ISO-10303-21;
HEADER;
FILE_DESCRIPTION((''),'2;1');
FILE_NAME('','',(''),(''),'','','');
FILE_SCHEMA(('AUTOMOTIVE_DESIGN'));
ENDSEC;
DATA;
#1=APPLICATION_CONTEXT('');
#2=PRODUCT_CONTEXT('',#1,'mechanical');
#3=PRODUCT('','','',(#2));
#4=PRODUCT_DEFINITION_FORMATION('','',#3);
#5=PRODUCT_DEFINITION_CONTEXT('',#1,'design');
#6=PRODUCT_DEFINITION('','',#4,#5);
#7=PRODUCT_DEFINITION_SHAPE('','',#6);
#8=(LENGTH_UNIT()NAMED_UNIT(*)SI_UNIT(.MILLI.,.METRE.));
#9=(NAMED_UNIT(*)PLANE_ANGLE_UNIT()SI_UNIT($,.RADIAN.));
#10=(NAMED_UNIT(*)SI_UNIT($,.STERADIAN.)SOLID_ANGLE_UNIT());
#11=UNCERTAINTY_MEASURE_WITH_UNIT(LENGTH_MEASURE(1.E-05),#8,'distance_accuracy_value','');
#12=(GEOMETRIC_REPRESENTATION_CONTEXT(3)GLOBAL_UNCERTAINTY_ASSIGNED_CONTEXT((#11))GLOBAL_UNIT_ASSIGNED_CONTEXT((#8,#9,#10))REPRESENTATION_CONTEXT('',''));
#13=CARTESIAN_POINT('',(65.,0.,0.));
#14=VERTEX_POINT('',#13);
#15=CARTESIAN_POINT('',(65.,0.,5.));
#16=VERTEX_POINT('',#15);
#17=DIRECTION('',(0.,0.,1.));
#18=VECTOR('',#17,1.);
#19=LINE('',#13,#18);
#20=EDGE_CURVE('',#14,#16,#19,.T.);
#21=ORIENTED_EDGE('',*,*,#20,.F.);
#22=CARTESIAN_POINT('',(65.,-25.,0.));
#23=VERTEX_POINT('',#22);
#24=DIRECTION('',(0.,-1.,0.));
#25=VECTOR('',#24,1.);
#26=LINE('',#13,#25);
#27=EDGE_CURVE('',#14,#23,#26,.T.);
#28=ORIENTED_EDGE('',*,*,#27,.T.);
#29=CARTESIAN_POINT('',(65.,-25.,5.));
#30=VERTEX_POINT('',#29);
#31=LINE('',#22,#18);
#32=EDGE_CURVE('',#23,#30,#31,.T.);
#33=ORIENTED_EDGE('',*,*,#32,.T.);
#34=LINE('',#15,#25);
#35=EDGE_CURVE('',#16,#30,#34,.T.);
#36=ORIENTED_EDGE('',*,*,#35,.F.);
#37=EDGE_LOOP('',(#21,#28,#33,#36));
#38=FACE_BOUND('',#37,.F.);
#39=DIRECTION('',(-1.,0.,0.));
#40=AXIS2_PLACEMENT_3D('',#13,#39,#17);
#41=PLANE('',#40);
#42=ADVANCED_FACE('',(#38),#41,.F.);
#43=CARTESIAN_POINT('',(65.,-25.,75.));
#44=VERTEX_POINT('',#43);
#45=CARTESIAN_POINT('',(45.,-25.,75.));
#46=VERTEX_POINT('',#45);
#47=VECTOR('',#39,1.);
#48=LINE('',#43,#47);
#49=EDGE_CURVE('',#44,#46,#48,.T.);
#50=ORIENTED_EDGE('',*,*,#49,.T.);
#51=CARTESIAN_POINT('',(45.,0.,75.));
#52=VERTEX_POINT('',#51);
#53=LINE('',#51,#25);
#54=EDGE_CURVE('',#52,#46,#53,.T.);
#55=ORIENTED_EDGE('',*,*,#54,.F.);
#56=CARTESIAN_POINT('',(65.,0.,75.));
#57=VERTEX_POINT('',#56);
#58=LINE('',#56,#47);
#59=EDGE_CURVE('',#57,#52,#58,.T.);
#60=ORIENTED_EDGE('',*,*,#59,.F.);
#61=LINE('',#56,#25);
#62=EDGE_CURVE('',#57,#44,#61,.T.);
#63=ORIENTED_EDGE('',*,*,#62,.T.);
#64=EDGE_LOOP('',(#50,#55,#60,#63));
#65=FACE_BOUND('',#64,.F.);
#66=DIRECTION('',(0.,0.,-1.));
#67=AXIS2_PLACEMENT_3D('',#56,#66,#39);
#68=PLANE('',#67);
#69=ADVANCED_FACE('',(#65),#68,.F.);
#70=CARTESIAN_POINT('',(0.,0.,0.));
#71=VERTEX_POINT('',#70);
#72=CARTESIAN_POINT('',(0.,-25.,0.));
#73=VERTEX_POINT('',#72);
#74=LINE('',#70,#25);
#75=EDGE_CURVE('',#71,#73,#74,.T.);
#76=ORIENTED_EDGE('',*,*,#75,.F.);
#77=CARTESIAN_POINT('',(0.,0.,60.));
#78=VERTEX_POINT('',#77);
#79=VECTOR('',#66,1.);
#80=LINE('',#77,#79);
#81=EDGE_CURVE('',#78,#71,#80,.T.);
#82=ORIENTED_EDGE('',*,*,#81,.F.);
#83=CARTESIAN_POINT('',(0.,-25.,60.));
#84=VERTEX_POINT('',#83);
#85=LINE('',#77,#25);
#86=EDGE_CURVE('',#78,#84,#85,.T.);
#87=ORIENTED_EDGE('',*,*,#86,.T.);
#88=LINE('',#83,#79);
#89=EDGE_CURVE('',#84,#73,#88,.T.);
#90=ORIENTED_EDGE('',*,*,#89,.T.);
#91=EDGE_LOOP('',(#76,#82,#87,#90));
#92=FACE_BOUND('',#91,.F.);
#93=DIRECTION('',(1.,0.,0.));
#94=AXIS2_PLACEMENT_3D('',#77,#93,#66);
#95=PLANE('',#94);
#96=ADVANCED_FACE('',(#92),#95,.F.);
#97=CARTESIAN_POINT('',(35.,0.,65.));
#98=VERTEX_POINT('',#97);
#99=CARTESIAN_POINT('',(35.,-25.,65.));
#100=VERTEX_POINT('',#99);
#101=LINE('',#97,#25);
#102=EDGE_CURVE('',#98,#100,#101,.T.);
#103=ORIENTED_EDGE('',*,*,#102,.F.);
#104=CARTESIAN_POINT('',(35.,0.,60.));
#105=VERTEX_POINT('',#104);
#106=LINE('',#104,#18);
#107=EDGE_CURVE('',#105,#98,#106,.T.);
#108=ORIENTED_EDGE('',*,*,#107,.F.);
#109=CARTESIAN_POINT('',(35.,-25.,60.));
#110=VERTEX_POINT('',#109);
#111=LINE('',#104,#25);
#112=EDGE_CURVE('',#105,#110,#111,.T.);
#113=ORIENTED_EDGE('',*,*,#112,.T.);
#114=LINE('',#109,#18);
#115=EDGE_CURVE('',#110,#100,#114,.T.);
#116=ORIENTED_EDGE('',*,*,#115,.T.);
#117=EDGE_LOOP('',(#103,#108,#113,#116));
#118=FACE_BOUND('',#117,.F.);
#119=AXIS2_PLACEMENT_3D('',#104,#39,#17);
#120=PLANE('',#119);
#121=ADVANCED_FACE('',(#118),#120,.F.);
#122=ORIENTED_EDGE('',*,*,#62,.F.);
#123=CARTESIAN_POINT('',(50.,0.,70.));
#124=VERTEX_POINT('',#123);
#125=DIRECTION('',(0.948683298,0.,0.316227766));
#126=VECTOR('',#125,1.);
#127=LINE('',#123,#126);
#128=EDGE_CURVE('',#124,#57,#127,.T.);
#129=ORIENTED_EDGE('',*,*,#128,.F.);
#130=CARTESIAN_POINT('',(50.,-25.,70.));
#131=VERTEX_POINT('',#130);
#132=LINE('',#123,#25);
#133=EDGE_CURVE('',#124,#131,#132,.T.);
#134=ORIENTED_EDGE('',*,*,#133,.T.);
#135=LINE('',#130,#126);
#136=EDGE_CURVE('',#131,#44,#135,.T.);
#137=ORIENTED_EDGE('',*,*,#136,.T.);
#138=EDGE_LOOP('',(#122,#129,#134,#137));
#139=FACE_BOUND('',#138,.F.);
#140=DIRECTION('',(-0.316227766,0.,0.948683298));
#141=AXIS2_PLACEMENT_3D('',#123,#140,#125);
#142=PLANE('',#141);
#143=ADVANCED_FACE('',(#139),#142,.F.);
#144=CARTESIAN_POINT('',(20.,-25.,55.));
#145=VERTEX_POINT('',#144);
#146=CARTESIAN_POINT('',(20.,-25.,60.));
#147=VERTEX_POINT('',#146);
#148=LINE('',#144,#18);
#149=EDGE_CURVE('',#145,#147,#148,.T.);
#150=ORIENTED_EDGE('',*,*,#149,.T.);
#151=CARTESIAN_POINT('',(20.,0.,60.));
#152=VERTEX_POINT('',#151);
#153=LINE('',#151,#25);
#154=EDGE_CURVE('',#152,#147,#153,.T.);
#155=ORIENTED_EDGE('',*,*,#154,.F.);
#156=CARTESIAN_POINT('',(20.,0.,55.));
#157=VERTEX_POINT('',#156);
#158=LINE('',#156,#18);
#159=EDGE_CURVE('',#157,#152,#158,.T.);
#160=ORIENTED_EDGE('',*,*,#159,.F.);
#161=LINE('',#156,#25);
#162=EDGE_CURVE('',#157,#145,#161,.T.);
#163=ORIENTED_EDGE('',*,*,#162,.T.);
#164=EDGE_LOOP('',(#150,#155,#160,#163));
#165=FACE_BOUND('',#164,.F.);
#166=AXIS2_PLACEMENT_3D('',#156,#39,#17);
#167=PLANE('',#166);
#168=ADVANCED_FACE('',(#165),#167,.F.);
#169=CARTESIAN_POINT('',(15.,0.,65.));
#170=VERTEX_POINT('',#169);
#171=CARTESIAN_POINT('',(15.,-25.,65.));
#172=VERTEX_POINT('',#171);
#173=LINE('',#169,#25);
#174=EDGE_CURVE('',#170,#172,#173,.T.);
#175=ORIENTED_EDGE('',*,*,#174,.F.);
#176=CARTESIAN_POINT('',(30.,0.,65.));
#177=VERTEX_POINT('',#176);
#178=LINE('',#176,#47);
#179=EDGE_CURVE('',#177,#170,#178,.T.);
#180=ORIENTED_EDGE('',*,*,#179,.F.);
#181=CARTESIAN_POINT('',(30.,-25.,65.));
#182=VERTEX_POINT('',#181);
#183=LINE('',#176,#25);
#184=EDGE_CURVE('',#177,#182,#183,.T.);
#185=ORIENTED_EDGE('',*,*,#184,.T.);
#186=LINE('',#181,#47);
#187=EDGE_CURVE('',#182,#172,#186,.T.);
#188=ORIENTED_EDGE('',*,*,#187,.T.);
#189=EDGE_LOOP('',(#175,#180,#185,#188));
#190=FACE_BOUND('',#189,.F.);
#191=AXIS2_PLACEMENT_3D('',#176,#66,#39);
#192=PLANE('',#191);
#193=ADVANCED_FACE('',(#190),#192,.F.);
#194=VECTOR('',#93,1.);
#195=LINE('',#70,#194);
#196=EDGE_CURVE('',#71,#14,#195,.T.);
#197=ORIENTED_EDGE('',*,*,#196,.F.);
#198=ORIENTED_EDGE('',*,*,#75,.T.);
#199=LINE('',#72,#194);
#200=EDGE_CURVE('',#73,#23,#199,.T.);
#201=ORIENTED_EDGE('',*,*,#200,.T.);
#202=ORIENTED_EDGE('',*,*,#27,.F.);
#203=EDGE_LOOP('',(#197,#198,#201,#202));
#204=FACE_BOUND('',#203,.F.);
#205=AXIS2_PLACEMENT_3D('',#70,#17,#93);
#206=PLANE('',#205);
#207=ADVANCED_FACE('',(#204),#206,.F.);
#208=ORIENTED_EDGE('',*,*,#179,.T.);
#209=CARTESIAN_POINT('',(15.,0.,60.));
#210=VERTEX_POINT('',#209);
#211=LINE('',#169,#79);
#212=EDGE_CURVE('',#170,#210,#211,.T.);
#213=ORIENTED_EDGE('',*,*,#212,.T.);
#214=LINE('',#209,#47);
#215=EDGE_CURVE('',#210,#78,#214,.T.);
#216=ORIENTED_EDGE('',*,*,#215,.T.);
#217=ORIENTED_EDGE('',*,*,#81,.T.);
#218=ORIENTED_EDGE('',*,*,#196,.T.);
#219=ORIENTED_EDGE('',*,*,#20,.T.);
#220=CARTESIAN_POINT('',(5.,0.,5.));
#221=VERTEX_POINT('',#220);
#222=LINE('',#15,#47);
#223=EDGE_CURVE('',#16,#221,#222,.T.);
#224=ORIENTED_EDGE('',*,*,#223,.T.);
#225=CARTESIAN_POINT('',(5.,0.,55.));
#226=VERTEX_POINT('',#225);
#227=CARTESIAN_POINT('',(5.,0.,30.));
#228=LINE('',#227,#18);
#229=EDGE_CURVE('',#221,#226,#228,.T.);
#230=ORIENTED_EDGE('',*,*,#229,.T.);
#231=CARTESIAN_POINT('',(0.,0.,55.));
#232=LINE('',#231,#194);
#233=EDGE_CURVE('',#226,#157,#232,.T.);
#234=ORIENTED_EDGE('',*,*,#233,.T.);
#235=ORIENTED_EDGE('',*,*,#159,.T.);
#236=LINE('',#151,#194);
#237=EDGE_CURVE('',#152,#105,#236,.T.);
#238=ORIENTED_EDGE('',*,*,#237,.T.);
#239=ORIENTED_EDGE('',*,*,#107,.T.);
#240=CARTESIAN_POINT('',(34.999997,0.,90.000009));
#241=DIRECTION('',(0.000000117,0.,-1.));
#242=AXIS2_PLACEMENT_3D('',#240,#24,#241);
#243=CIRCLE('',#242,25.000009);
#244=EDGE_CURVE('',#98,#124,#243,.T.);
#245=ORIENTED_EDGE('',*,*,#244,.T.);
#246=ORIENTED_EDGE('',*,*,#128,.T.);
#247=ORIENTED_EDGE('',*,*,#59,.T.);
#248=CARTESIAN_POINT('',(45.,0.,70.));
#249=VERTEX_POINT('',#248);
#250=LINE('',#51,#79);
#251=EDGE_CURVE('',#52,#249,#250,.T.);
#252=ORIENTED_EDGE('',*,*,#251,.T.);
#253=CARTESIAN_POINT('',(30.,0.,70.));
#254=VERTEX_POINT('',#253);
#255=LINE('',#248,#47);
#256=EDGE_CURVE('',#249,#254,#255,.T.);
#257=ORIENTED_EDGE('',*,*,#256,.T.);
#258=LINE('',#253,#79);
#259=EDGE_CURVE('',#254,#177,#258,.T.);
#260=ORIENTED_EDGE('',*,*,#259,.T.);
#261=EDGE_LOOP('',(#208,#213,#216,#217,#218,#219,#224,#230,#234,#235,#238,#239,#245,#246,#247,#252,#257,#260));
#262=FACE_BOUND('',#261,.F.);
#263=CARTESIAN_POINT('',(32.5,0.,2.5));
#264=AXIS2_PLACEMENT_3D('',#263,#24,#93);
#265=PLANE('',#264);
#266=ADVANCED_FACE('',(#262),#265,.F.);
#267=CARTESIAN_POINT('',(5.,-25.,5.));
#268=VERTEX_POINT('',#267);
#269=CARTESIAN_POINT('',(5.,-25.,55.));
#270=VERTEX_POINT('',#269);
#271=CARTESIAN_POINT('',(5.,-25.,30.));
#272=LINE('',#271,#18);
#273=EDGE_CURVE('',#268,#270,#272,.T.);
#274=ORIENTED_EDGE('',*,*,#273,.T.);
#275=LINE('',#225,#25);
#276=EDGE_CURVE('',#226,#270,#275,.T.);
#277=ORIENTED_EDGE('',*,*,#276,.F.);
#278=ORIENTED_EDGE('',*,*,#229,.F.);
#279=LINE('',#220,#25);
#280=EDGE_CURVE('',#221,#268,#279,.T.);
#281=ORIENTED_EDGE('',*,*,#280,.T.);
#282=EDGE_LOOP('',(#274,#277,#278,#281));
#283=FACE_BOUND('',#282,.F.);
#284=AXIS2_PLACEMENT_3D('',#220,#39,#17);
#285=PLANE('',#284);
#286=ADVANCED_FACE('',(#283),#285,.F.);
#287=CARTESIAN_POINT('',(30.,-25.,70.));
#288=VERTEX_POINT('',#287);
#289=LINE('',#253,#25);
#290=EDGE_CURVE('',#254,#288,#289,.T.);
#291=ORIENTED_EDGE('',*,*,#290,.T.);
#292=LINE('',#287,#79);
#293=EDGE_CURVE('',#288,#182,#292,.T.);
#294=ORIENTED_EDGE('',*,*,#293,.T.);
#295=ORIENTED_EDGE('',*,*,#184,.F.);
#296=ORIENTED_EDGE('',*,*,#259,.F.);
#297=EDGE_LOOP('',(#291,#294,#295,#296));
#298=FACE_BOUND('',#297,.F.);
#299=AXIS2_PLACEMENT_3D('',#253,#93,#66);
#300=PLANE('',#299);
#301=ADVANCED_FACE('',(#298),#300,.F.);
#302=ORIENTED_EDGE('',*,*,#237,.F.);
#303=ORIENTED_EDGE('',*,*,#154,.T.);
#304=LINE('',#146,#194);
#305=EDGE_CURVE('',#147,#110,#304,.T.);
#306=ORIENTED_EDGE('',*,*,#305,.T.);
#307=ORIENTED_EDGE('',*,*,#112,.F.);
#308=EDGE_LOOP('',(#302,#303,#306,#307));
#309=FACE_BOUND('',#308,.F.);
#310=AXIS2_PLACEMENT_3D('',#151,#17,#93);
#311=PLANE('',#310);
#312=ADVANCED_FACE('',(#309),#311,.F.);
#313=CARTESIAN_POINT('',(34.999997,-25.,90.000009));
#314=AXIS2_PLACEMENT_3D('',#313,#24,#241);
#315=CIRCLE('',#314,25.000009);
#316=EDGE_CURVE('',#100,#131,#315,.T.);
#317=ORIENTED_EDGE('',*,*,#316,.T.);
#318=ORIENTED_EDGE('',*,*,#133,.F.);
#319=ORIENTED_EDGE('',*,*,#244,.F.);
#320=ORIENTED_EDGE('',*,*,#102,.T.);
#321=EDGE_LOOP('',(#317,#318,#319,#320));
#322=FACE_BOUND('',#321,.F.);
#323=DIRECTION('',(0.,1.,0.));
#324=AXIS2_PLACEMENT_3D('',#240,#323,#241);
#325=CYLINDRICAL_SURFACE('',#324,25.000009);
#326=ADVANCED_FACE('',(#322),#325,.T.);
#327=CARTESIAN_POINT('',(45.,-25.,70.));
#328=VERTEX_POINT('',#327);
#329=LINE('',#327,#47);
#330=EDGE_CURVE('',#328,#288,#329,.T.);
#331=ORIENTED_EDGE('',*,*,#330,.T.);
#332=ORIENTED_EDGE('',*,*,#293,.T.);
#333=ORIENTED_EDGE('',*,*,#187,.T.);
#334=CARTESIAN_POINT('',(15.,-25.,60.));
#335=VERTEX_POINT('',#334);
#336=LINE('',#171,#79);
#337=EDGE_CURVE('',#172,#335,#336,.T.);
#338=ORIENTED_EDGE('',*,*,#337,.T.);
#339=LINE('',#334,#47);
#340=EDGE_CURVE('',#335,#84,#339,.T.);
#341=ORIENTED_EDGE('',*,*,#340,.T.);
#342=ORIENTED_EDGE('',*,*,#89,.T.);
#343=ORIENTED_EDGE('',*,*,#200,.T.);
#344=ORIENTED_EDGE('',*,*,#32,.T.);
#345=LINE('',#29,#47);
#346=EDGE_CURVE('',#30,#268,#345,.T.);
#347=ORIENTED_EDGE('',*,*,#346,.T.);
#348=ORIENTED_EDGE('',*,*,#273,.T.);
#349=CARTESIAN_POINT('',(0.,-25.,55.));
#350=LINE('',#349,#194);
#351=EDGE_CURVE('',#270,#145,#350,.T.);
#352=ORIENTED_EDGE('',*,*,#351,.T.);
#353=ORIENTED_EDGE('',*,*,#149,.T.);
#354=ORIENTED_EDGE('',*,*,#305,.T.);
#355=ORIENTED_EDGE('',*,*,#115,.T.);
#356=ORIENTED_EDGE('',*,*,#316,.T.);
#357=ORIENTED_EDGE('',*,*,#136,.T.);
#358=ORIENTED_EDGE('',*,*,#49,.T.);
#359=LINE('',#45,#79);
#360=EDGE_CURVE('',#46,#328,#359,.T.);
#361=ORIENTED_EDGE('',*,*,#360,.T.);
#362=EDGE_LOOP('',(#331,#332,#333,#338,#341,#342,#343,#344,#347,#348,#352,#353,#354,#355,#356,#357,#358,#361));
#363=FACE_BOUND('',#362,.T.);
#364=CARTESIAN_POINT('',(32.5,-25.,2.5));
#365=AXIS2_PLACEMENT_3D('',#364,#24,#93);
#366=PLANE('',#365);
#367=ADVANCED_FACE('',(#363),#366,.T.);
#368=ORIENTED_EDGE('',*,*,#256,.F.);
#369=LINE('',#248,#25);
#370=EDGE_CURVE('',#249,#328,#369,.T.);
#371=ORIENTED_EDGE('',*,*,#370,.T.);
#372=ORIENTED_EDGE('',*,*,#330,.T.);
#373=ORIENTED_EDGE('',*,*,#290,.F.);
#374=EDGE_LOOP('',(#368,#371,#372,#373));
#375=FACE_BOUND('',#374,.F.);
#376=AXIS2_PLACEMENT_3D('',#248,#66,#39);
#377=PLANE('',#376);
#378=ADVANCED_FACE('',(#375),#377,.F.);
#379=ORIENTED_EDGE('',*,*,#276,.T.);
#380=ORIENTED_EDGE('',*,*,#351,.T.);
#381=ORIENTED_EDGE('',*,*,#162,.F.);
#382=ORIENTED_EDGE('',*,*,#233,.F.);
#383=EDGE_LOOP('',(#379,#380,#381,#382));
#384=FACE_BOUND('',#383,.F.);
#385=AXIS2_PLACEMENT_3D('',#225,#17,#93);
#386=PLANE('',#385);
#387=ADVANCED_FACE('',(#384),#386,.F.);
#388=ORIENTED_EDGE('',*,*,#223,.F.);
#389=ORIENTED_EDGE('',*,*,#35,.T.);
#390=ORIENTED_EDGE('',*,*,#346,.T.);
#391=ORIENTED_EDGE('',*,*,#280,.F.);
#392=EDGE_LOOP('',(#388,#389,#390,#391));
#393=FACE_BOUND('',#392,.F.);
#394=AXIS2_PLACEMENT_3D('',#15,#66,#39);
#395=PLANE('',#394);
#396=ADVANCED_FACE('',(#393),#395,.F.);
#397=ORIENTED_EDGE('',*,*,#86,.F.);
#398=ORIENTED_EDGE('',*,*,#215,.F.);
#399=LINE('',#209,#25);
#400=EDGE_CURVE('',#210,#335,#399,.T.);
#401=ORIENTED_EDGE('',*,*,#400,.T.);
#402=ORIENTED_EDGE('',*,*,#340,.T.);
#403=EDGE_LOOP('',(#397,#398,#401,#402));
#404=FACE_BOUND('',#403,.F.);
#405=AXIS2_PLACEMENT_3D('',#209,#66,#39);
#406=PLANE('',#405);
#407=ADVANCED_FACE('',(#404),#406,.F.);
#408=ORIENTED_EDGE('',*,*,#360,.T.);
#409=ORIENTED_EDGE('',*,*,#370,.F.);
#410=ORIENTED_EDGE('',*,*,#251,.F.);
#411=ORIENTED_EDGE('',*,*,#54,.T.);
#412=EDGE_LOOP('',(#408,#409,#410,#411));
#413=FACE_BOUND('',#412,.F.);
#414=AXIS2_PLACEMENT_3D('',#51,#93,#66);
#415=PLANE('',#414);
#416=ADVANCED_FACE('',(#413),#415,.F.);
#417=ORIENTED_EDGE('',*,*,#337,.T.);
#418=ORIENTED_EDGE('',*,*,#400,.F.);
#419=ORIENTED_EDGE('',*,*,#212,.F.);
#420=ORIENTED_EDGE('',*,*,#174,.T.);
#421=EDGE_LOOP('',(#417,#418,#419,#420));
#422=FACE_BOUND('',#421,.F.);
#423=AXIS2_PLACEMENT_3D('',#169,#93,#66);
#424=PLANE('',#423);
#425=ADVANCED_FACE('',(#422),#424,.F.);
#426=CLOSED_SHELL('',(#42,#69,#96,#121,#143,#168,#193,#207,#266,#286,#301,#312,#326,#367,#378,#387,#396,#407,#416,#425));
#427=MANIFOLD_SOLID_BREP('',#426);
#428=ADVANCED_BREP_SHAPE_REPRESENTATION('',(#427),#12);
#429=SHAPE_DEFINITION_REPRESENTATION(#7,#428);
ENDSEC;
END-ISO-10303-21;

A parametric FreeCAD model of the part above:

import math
import FreeCAD as App
import Part
import Sketcher
from FreeCAD import Vector

doc = App.newDocument("Part")
body = doc.addObject("PartDesign::Body", "Body")

sketch1 = body.newObject("Sketcher::SketchObject", "Sketch")
sketch1.AttachmentSupport = (doc.getObject("XZ_Plane"), [""])
sketch1.MapMode = "FlatFace"
sketch1.addGeometry([
    Part.LineSegment(Vector(0, 0, 0), Vector(65, 0, 0)),
    Part.LineSegment(Vector(65, 0, 0), Vector(65, 5, 0)),
    Part.LineSegment(Vector(65, 5, 0), Vector(5, 5, 0)),
    Part.LineSegment(Vector(5, 5, 0), Vector(5, 55, 0)),
    Part.LineSegment(Vector(5, 55, 0), Vector(20, 55, 0)),
    Part.LineSegment(Vector(20, 55, 0), Vector(20, 60, 0)),
    Part.LineSegment(Vector(20, 60, 0), Vector(35, 60, 0)),
    Part.LineSegment(Vector(35, 60, 0), Vector(35, 65, 0)),
    Part.ArcOfCircle(Part.Circle(Vector(35, 90, 0), Vector(0, 0, 1), 25), math.radians(-90), math.radians(-53)),
    Part.LineSegment(Vector(50, 70, 0), Vector(65, 75, 0)),
    Part.LineSegment(Vector(65, 75, 0), Vector(45, 75, 0)),
    Part.LineSegment(Vector(45, 75, 0), Vector(45, 70, 0)),
    Part.LineSegment(Vector(45, 70, 0), Vector(30, 70, 0)),
    Part.LineSegment(Vector(30, 70, 0), Vector(30, 65, 0)),
    Part.LineSegment(Vector(30, 65, 0), Vector(15, 65, 0)),
    Part.LineSegment(Vector(15, 65, 0), Vector(15, 60, 0)),
    Part.LineSegment(Vector(15, 60, 0), Vector(0, 60, 0)),
    Part.LineSegment(Vector(0, 60, 0), Vector(0, 0, 0)),
], False)
sketch1.addConstraint([
    Sketcher.Constraint("Coincident", 0, 2, 1, 1),
    Sketcher.Constraint("Coincident", 1, 2, 2, 1),
    Sketcher.Constraint("Coincident", 2, 2, 3, 1),
    Sketcher.Constraint("Coincident", 3, 2, 4, 1),
    Sketcher.Constraint("Coincident", 4, 2, 5, 1),
    Sketcher.Constraint("Coincident", 5, 2, 6, 1),
    Sketcher.Constraint("Coincident", 6, 2, 7, 1),
    Sketcher.Constraint("Coincident", 7, 2, 8, 1),
    Sketcher.Constraint("Coincident", 8, 2, 9, 1),
    Sketcher.Constraint("Coincident", 9, 2, 10, 1),
    Sketcher.Constraint("Coincident", 10, 2, 11, 1),
    Sketcher.Constraint("Coincident", 11, 2, 12, 1),
    Sketcher.Constraint("Coincident", 12, 2, 13, 1),
    Sketcher.Constraint("Coincident", 13, 2, 14, 1),
    Sketcher.Constraint("Coincident", 14, 2, 15, 1),
    Sketcher.Constraint("Coincident", 15, 2, 16, 1),
    Sketcher.Constraint("Coincident", 16, 2, 17, 1),
    Sketcher.Constraint("Coincident", 17, 2, 0, 1),
    Sketcher.Constraint("Horizontal", 0),
    Sketcher.Constraint("Vertical", 1),
    Sketcher.Constraint("Horizontal", 2),
    Sketcher.Constraint("Vertical", 3),
    Sketcher.Constraint("Horizontal", 4),
    Sketcher.Constraint("Vertical", 5),
    Sketcher.Constraint("Horizontal", 6),
    Sketcher.Constraint("Vertical", 7),
    Sketcher.Constraint("Horizontal", 10),
    Sketcher.Constraint("Vertical", 11),
    Sketcher.Constraint("Horizontal", 12),
    Sketcher.Constraint("Vertical", 13),
    Sketcher.Constraint("Horizontal", 14),
    Sketcher.Constraint("Vertical", 15),
    Sketcher.Constraint("Horizontal", 16),
    Sketcher.Constraint("Vertical", 17),
    Sketcher.Constraint("Coincident", 17, 2, -1, 1),
    Sketcher.Constraint("Horizontal", 8, 2, 11, 2),
    Sketcher.Constraint("Horizontal", 7, 2, 13, 2),
    Sketcher.Constraint("Horizontal", 6, 2, 15, 2),
    Sketcher.Constraint("Vertical", 1, 2, 9, 2),
    Sketcher.Constraint("Equal", 4, 6),
    Sketcher.Constraint("Equal", 6, 12),
    Sketcher.Constraint("Equal", 12, 14),
    Sketcher.Constraint("Equal", 14, 16),
    Sketcher.Constraint("Equal", 1, 5),
    Sketcher.Constraint("Equal", 5, 7),
    Sketcher.Constraint("Equal", 7, 11),
    Sketcher.Constraint("Equal", 11, 13),
    Sketcher.Constraint("Equal", 2, 17),
    Sketcher.Constraint("DistanceX", 0, 1, 0, 2, 65.0),
    Sketcher.Constraint("DistanceX", 2, 2, 2, 1, 60.0),
    Sketcher.Constraint("DistanceX", 4, 1, 4, 2, 15.0),
    Sketcher.Constraint("DistanceY", 1, 1, 1, 2, 5.0),
    Sketcher.Constraint("DistanceX", -1, 1, 8, 2, 50.0),
    Sketcher.Constraint("Radius", 8, 25.000009),
])
pad1 = body.newObject("PartDesign::Pad", "Pad")
pad1.Profile = sketch1
pad1.Length = 25

doc.recompute()
